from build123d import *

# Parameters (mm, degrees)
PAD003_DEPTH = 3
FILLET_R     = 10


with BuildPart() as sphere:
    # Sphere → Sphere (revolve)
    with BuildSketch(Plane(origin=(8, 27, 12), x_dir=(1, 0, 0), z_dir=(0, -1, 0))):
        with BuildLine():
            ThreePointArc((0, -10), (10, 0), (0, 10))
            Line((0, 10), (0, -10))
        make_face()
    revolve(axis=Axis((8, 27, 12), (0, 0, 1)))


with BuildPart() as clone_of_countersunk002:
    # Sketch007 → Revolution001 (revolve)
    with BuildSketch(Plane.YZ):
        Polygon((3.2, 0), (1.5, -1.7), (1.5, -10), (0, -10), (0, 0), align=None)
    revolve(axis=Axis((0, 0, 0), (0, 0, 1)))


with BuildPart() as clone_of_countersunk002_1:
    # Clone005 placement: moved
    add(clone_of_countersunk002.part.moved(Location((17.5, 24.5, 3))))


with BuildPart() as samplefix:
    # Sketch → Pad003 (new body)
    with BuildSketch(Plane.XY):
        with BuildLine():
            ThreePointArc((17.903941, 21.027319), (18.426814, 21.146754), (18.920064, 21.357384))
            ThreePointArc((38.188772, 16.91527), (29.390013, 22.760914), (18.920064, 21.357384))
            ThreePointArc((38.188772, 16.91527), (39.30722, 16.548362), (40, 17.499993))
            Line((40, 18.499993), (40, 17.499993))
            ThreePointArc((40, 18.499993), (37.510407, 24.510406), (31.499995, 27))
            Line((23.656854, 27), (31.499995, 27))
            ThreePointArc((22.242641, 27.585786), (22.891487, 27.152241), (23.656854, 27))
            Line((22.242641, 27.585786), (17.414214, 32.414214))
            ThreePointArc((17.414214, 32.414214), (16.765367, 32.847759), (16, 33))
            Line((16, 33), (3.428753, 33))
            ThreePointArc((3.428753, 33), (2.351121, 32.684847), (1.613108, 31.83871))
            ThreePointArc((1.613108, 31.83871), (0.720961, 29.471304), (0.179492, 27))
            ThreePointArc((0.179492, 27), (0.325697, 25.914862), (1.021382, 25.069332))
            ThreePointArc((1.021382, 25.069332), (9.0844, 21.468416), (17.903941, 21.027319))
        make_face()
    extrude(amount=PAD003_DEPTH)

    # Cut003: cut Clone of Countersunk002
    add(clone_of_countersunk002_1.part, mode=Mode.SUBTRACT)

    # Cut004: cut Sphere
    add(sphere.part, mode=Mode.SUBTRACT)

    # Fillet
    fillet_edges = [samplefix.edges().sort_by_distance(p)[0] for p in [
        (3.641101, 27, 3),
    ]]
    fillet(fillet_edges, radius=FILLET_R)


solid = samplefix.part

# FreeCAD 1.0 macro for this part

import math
import FreeCAD as App
import Part
import Sketcher
Q = App.Units.Quantity


def edges_at(feature, points):
    """Names of the edges that pass closest to the given points."""
    edges = feature.Shape.Edges
    near = lambda p: min(range(len(edges)), key=lambda i: edges[i].distToShape(Part.Vertex(*p))[0])
    return sorted({f"Edge{near(p) + 1}" for p in points})

doc = App.newDocument("Part")
body = doc.addObject("PartDesign::Body", "Body")

sketch1 = body.newObject("Sketcher::SketchObject", "Sketch")
sketch1.AttachmentSupport = (doc.getObject("XZ_Plane"), [""])
sketch1.MapMode = "FlatFace"
sketch1.AttachmentOffset = App.Placement(App.Vector(0, 0, -27), App.Rotation())
sketch1.addGeometry(Part.ArcOfCircle(Part.Circle(App.Vector(8, 12, 0), App.Vector(0, 0, 1), 10), math.radians(-90), math.radians(90)), False)
sketch1.addGeometry(Part.LineSegment(App.Vector(8, 22, 0), App.Vector(8, 2, 0)), False)
sketch1.addGeometry(Part.LineSegment(App.Vector(8, 2, 0), App.Vector(8, 22, 0)), True)
sketch1.addConstraint(Sketcher.Constraint("Coincident", 0, 1, 1, 2))
sketch1.addConstraint(Sketcher.Constraint("Coincident", 1, 1, 0, 2))
sketch1.addConstraint(Sketcher.Constraint("Vertical", 1))
sketch1.addConstraint(Sketcher.Constraint("Vertical", 2))
sketch1.addConstraint(Sketcher.Constraint("Coincident", 2, 1, 0, 1))
sketch1.addConstraint(Sketcher.Constraint("Equal", 1, 2))
sketch1.addConstraint(Sketcher.Constraint("Radius", 0, Q("10 mm")))
sketch1.addConstraint(Sketcher.Constraint("DistanceX", -1, 1, 0, 3, Q("8 mm")))
sketch1.addConstraint(Sketcher.Constraint("DistanceY", -1, 1, 0, 3, Q("12 mm")))
sketch1.addConstraint(Sketcher.Constraint("DistanceX", -1, 1, 0, 1, Q("8 mm")))
revolution = body.newObject("PartDesign::Revolution", "Revolution")
revolution.Profile = sketch1
revolution.ReferenceAxis = (sketch1, ["Axis0"])
revolution.Angle = 360
body2 = doc.addObject("PartDesign::Body", "Body001")

sketch2 = body2.newObject("Sketcher::SketchObject", "Sketch001")
sketch2.AttachmentSupport = (doc.getObject("YZ_Plane001"), [""])
sketch2.MapMode = "FlatFace"
sketch2.addGeometry(Part.LineSegment(App.Vector(1.5, -1.7, 0), App.Vector(3.2, 0, 0)), False)
sketch2.addGeometry(Part.LineSegment(App.Vector(3.2, 0, 0), App.Vector(0, 0, 0)), False)
sketch2.addGeometry(Part.LineSegment(App.Vector(0, 0, 0), App.Vector(0, -10, 0)), False)
sketch2.addGeometry(Part.LineSegment(App.Vector(0, -10, 0), App.Vector(1.5, -10, 0)), False)
sketch2.addGeometry(Part.LineSegment(App.Vector(1.5, -10, 0), App.Vector(1.5, -1.7, 0)), False)
sketch2.addConstraint(Sketcher.Constraint("Coincident", 0, 2, 1, 1))
sketch2.addConstraint(Sketcher.Constraint("Coincident", 1, 2, 2, 1))
sketch2.addConstraint(Sketcher.Constraint("Coincident", 2, 2, 3, 1))
sketch2.addConstraint(Sketcher.Constraint("Coincident", 3, 2, 4, 1))
sketch2.addConstraint(Sketcher.Constraint("Coincident", 4, 2, 0, 1))
sketch2.addConstraint(Sketcher.Constraint("Horizontal", 1))
sketch2.addConstraint(Sketcher.Constraint("Vertical", 2))
sketch2.addConstraint(Sketcher.Constraint("Horizontal", 3))
sketch2.addConstraint(Sketcher.Constraint("Vertical", 4))
sketch2.addConstraint(Sketcher.Constraint("Coincident", 1, 2, -1, 1))
sketch2.addConstraint(Sketcher.Constraint("DistanceY", 2, 2, 2, 1, Q("10 mm")))
sketch2.addConstraint(Sketcher.Constraint("Angle", 0, Q("45 deg")))
sketch2.addConstraint(Sketcher.Constraint("DistanceX", 1, 2, 1, 1, Q("3.2 mm")))
sketch2.addConstraint(Sketcher.Constraint("DistanceX", 3, 1, 3, 2, Q("1.5 mm")))
revolution2 = body2.newObject("PartDesign::Revolution", "Revolution001")
revolution2.Profile = sketch2
revolution2.ReferenceAxis = (sketch2, ["V_Axis"])
revolution2.Angle = 360
body3 = doc.addObject("PartDesign::Body", "Body002")
doc.recompute()

body2.Placement = App.Placement(App.Vector(17.5, 24.5, 3), App.Rotation(App.Vector(0, 0, 1), 0))
boolean = body3.newObject("PartDesign::Boolean", "Boolean")
boolean.Type = "Fuse"
boolean.addObjects([body2])
body4 = doc.addObject("PartDesign::Body", "Body003")

sketch3 = body4.newObject("Sketcher::SketchObject", "Sketch002")
sketch3.AttachmentSupport = (doc.getObject("XY_Plane003"), [""])
sketch3.MapMode = "FlatFace"
sketch3.addGeometry(Part.ArcOfCircle(Part.Circle(App.Vector(17.5, 24, 0), App.Vector(0, 0, 1), 3), math.radians(-82), math.radians(-62)), False)
sketch3.addGeometry(Part.ArcOfCircle(Part.Circle(App.Vector(26, 8.1, 0), App.Vector(0, 0, 1), 15), math.radians(36), math.radians(118)), False)
sketch3.addGeometry(Part.ArcOfCircle(Part.Circle(App.Vector(39, 17.5, 0), App.Vector(0, 0, 1), 1), math.radians(-144), math.radians(0)), False)
sketch3.addGeometry(Part.LineSegment(App.Vector(40, 17.5, 0), App.Vector(40, 18.5, 0)), False)
sketch3.addGeometry(Part.ArcOfCircle(Part.Circle(App.Vector(31.5, 18.5, 0), App.Vector(0, 0, 1), 8.5), math.radians(0), math.radians(90)), False)
sketch3.addGeometry(Part.LineSegment(App.Vector(31.5, 27, 0), App.Vector(23.7, 27, 0)), False)
sketch3.addGeometry(Part.ArcOfCircle(Part.Circle(App.Vector(23.7, 29, 0), App.Vector(0, 0, 1), 2), math.radians(-135), math.radians(-90)), False)
sketch3.addGeometry(Part.LineSegment(App.Vector(22.2, 27.6, 0), App.Vector(17.4, 32.4, 0)), False)
sketch3.addGeometry(Part.ArcOfCircle(Part.Circle(App.Vector(16, 31, 0), App.Vector(0, 0, 1), 2), math.radians(45), math.radians(90)), False)
sketch3.addGeometry(Part.LineSegment(App.Vector(16, 33, 0), App.Vector(3.4, 33, 0)), False)
sketch3.addGeometry(Part.ArcOfCircle(Part.Circle(App.Vector(3.4, 31, 0), App.Vector(0, 0, 1), 2), math.radians(90), math.radians(155)), False)
sketch3.addGeometry(Part.ArcOfCircle(Part.Circle(App.Vector(17.5, 24.5, 0), App.Vector(0, 0, 1), 17.5), math.radians(155.21), math.radians(171.79)), False)
sketch3.addGeometry(Part.ArcOfCircle(Part.Circle(App.Vector(2.2, 26.7, 0), App.Vector(0, 0, 1), 2), math.radians(172), math.radians(235)), False)
sketch3.addGeometry(Part.ArcOfCircle(Part.Circle(App.Vector(14.7, 44.8, 0), App.Vector(0, 0, 1), 24), math.radians(-125), math.radians(-82)), False)
sketch3.addConstraint(Sketcher.Constraint("Tangent", 0, 2, 1, 2))
sketch3.addConstraint(Sketcher.Constraint("Tangent", 1, 1, 2, 1))
sketch3.addConstraint(Sketcher.Constraint("Coincident", 2, 2, 3, 1))
sketch3.addConstraint(Sketcher.Constraint("Tangent", 3, 2, 4, 1))
sketch3.addConstraint(Sketcher.Constraint("Tangent", 4, 2, 5, 1))
sketch3.addConstraint(Sketcher.Constraint("Tangent", 5, 2, 6, 2))
sketch3.addConstraint(Sketcher.Constraint("Tangent", 6, 1, 7, 1))
sketch3.addConstraint(Sketcher.Constraint("Tangent", 7, 2, 8, 1))
sketch3.addConstraint(Sketcher.Constraint("Tangent", 8, 2, 9, 1))
sketch3.addConstraint(Sketcher.Constraint("Tangent", 9, 2, 10, 1))
sketch3.addConstraint(Sketcher.Constraint("Tangent", 10, 2, 11, 1))
sketch3.addConstraint(Sketcher.Constraint("Tangent", 11, 2, 12, 1))
sketch3.addConstraint(Sketcher.Constraint("Tangent", 12, 2, 13, 1))
sketch3.addConstraint(Sketcher.Constraint("Coincident", 13, 2, 0, 1))
sketch3.addConstraint(Sketcher.Constraint("Vertical", 3))
sketch3.addConstraint(Sketcher.Constraint("Horizontal", 5))
sketch3.addConstraint(Sketcher.Constraint("Horizontal", 9))
sketch3.addConstraint(Sketcher.Constraint("Equal", 6, 10))
sketch3.addConstraint(Sketcher.Constraint("Equal", 10, 12))
sketch3.addConstraint(Sketcher.Constraint("Horizontal", 5, 2, 11, 2))
sketch3.addConstraint(Sketcher.Constraint("Radius", 1, Q("15.000001 mm")))
sketch3.addConstraint(Sketcher.Constraint("Radius", 2, Q("1 mm")))
sketch3.addConstraint(Sketcher.Constraint("Radius", 6, Q("2 mm")))
sketch3.addConstraint(Sketcher.Constraint("DistanceY", 3, 1, 3, 2, Q("1 mm")))
sketch3.addConstraint(Sketcher.Constraint("Angle", 7, Q("134.999994 deg")))
sketch3.addConstraint(Sketcher.Constraint("DistanceX", -1, 1, 2, 3, Q("39 mm")))
sketch3.addConstraint(Sketcher.Constraint("DistanceY", -1, 1, 6, 3, Q("29 mm")))
sketch3.addConstraint(Sketcher.Constraint("DistanceX", -1, 1, 8, 3, Q("15.999999 mm")))
sketch3.addConstraint(Sketcher.Constraint("DistanceY", -1, 1, 10, 3, Q("30.999999 mm")))
sketch3.addConstraint(Sketcher.Constraint("DistanceY", -1, 1, 2, 3, Q("17.500001 mm")))
sketch3.addConstraint(Sketcher.Constraint("DistanceY", 4, 3, 8, 3, Q("12.5 mm")))
sketch3.addConstraint(Sketcher.Constraint("Radius", 0, Q("3.000041 mm")))
sketch3.addConstraint(Sketcher.Constraint("Radius", 13, Q("23.999992 mm")))
sketch3.addConstraint(Sketcher.Constraint("Radius", 4, Q("8.500004 mm")))
sketch3.addConstraint(Sketcher.Constraint("Radius", 11, Q("17.499963 mm")))
sketch3.addConstraint(Sketcher.Constraint("DistanceY", 1, 3, 4, 3, Q("10.3557 mm")))
sketch3.addConstraint(Sketcher.Constraint("DistanceX", 10, 3, 6, 3, Q("20.228101 mm")))
sketch3.addConstraint(Sketcher.Constraint("DistanceX", 11, 3, 0, 2, Q("1.4201 mm")))
sketch3.addConstraint(Sketcher.Constraint("DistanceX", 13, 2, 6, 1, Q("4.3387 mm")))
sketch3.addConstraint(Sketcher.Constraint("DistanceY", -1, 1, 0, 3, Q("24.000039 mm")))
pad1 = body4.newObject("PartDesign::Pad", "Pad")
pad1.Profile = sketch3
pad1.Length = 3
doc.recompute()

boolean2 = body4.newObject("PartDesign::Boolean", "Boolean001")
boolean2.Type = "Cut"
boolean2.addObjects([body3])
doc.recompute()

boolean3 = body4.newObject("PartDesign::Boolean", "Boolean002")
boolean3.Type = "Cut"
boolean3.addObjects([body])
doc.recompute()

fillet = body4.newObject("PartDesign::Fillet", "Fillet")
fillet.Base = (boolean3, edges_at(boolean3, [(3.641, 27, 3)]))
fillet.Radius = 10

doc.recompute()
